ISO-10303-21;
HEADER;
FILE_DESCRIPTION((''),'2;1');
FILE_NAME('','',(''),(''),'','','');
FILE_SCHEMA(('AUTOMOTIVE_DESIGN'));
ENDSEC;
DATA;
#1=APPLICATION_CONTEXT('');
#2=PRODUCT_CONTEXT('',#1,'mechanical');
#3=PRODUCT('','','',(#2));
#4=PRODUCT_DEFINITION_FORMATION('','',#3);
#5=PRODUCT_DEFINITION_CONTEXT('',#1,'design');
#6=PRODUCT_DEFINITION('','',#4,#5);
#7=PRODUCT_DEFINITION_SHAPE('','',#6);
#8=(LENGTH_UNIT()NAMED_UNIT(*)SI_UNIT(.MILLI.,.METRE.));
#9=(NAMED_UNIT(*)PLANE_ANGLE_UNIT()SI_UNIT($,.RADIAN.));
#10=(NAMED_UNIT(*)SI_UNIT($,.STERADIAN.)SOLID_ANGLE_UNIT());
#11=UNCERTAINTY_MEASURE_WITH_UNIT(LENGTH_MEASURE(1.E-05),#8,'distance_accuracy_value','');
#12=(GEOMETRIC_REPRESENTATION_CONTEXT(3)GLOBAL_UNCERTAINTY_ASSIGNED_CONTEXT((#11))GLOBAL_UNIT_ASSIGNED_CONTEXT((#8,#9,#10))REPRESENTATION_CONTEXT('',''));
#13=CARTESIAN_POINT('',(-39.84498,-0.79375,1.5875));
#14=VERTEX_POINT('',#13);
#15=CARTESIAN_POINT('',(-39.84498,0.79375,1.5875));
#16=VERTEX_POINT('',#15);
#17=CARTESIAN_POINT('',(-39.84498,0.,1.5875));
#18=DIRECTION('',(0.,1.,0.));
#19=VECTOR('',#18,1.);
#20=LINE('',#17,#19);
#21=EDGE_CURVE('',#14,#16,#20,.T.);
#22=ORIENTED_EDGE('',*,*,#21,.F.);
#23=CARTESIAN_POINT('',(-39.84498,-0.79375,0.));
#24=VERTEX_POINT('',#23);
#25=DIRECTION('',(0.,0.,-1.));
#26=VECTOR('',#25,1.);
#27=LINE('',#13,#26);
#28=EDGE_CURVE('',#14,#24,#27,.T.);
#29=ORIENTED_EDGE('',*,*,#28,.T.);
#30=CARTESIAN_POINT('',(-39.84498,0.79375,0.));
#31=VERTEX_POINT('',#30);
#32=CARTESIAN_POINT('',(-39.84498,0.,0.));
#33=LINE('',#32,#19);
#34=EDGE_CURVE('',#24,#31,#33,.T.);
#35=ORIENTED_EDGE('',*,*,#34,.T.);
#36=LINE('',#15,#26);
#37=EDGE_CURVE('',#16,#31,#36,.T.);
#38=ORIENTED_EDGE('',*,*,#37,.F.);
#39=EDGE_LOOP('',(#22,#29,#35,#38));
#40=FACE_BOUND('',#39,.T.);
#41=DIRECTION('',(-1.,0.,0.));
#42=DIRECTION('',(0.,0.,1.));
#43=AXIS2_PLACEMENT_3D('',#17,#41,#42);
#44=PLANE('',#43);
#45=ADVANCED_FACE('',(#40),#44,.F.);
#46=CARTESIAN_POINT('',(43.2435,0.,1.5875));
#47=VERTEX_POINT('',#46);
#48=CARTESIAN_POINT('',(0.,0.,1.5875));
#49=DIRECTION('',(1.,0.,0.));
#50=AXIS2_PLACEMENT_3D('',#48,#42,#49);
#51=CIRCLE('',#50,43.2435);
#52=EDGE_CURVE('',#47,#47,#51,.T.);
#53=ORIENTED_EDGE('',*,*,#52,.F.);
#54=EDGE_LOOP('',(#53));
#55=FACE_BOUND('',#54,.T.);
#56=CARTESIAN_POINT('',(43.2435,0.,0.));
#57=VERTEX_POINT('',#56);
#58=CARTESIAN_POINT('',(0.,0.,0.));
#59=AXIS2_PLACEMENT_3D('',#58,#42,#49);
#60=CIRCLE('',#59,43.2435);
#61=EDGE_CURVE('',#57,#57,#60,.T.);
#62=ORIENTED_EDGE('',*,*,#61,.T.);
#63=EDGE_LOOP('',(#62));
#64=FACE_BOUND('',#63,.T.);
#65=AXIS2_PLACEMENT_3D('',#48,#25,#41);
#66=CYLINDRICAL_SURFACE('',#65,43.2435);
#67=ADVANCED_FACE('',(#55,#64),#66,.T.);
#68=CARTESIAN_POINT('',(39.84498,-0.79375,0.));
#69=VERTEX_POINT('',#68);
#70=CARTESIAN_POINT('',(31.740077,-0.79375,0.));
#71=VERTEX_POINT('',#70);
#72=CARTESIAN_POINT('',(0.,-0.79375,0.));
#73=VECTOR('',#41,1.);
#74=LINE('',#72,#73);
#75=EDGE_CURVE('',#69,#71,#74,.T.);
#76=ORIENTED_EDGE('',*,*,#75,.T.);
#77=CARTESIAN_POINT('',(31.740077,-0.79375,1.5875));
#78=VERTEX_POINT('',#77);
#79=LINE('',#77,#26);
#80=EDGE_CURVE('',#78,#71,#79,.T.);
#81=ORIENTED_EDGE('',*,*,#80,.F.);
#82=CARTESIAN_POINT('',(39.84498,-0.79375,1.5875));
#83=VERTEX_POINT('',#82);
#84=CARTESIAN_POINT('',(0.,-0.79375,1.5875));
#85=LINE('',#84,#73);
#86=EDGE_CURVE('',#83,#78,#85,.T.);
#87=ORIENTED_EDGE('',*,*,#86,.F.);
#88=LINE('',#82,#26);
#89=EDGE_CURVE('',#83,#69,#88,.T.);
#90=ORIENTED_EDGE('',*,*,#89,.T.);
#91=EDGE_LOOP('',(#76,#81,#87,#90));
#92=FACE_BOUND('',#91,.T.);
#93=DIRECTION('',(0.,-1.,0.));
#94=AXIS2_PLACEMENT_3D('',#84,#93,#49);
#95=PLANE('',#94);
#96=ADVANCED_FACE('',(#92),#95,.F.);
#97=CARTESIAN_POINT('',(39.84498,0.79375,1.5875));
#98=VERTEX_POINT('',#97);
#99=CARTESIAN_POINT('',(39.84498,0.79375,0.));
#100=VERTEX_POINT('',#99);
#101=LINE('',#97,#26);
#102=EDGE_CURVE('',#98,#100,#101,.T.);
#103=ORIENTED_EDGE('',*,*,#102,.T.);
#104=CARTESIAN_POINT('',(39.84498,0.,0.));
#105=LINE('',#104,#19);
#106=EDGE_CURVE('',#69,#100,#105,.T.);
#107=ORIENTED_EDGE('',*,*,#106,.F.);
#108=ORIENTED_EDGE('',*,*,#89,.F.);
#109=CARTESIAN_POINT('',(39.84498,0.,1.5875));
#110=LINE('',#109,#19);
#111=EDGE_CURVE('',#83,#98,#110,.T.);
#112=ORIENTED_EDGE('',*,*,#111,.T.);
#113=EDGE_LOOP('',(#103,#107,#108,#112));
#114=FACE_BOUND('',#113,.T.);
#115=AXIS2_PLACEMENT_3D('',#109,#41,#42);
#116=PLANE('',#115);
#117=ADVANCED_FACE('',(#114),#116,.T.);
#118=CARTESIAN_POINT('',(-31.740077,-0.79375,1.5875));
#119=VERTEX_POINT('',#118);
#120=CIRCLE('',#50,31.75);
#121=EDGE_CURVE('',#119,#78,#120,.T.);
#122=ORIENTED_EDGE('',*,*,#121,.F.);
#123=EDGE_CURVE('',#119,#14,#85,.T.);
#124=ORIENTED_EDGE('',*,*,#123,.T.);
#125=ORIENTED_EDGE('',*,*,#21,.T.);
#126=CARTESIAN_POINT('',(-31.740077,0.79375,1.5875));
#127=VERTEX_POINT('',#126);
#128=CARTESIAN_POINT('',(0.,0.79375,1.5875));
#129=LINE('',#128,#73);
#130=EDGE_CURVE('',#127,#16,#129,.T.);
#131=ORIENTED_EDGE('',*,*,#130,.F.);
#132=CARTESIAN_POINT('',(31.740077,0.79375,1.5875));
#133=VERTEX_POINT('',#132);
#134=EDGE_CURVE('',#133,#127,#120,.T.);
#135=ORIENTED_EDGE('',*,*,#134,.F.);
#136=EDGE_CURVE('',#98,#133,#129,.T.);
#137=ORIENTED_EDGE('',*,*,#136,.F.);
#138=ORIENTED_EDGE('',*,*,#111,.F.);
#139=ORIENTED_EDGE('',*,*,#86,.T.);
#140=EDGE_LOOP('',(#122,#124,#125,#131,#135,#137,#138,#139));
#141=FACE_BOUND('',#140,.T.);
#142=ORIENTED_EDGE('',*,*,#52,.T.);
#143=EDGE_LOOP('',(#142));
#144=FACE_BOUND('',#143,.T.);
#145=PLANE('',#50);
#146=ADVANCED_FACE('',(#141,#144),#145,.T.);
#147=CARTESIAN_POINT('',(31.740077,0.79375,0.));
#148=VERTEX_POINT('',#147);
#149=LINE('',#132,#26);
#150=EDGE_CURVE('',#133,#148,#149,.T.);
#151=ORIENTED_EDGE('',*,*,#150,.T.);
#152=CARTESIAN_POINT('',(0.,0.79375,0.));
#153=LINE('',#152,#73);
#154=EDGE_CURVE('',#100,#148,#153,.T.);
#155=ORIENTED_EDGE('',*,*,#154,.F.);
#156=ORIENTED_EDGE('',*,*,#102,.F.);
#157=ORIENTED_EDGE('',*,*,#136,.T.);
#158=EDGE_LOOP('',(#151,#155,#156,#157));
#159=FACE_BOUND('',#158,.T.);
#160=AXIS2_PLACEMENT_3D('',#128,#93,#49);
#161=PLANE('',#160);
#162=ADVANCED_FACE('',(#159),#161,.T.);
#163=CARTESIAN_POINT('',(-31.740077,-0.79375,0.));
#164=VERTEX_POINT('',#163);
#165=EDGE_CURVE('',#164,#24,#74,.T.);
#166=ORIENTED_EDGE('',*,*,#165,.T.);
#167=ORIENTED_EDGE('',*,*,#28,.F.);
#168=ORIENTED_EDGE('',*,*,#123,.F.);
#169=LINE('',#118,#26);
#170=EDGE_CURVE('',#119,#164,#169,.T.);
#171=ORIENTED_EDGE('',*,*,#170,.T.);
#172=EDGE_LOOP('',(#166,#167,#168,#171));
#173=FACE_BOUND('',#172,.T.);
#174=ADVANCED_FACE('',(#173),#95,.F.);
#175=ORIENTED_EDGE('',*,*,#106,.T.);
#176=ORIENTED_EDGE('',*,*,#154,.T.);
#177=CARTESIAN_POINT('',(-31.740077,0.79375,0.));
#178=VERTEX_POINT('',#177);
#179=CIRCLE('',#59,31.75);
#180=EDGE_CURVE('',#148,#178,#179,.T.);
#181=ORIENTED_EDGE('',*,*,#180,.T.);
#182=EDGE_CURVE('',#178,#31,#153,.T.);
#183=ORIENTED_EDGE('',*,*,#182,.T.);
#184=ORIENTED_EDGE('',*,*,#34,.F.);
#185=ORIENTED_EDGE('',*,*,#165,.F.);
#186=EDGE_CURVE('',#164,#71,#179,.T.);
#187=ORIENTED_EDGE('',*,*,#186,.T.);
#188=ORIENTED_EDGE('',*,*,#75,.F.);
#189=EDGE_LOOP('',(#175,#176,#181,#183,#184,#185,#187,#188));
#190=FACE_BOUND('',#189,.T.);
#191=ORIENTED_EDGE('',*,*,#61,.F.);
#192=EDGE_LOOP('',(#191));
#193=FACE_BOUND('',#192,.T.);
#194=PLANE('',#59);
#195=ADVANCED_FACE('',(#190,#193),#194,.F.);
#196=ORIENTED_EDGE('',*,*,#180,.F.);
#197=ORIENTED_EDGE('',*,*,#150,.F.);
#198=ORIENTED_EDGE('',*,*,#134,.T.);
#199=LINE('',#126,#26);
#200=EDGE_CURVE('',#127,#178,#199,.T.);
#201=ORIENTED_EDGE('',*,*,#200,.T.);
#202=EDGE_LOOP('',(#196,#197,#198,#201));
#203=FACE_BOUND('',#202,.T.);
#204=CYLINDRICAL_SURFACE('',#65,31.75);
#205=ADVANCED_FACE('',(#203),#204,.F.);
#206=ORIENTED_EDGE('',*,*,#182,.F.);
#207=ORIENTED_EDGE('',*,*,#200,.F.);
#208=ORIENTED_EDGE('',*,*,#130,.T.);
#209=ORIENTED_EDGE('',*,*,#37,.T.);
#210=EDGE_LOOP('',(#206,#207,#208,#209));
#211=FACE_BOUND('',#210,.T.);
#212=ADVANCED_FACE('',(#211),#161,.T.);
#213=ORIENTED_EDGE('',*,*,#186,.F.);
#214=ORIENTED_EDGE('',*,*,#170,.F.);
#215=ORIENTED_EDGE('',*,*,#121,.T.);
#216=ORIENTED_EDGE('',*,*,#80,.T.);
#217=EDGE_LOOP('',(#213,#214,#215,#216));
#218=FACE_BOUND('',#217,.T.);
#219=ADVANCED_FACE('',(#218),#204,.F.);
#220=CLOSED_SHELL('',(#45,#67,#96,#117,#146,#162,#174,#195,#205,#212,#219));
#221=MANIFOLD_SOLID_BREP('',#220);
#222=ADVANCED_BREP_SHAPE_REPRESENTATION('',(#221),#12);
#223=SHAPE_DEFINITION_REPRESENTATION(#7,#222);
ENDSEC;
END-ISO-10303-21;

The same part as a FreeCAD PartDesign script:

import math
import FreeCAD as App
import Part
import Sketcher
Q = App.Units.Quantity

doc = App.newDocument("Part")
body = doc.addObject("PartDesign::Body", "Body")

# Sketch on XY plane
sketch1 = doc.addObject("Sketcher::SketchObject", "Sketch")
body.addObject(sketch1)
sketch1.AttachmentSupport = (doc.XY_Plane, [""])
sketch1.MapMode = "FlatFace"
sketch1.addGeometry(Part.Circle(App.Vector(0, 0, 0), App.Vector(0, 0, 1), 43.2), False)
sketch1.addGeometry(Part.LineSegment(App.Vector(31.7, 0.8, 0), App.Vector(39.8, 0.8, 0)), False)
sketch1.addGeometry(Part.LineSegment(App.Vector(39.8, 0.8, 0), App.Vector(39.8, -0.8, 0)), False)
sketch1.addGeometry(Part.LineSegment(App.Vector(39.8, -0.8, 0), App.Vector(31.7, -0.8, 0)), False)
sketch1.addGeometry(Part.ArcOfCircle(Part.Circle(App.Vector(0, 0, 0), App.Vector(0, 0, 1), 31.8), math.radians(-179), math.radians(-1)), False)
sketch1.addGeometry(Part.LineSegment(App.Vector(-31.7, -0.8, 0), App.Vector(-39.8, -0.8, 0)), False)
sketch1.addGeometry(Part.LineSegment(App.Vector(-39.8, -0.8, 0), App.Vector(-39.8, 0.8, 0)), False)
sketch1.addGeometry(Part.LineSegment(App.Vector(-39.8, 0.8, 0), App.Vector(-31.7, 0.8, 0)), False)
sketch1.addGeometry(Part.ArcOfCircle(Part.Circle(App.Vector(0, 0, 0), App.Vector(0, 0, 1), 31.8), math.radians(1), math.radians(179)), False)
sketch1.addConstraint(Sketcher.Constraint("Coincident", 1, 2, 2, 1))
sketch1.addConstraint(Sketcher.Constraint("Coincident", 2, 2, 3, 1))
sketch1.addConstraint(Sketcher.Constraint("Coincident", 3, 2, 4, 2))
sketch1.addConstraint(Sketcher.Constraint("Coincident", 4, 1, 5, 1))
sketch1.addConstraint(Sketcher.Constraint("Coincident", 5, 2, 6, 1))
sketch1.addConstraint(Sketcher.Constraint("Coincident", 6, 2, 7, 1))
sketch1.addConstraint(Sketcher.Constraint("Coincident", 7, 2, 8, 2))
sketch1.addConstraint(Sketcher.Constraint("Coincident", 8, 1, 1, 1))
sketch1.addConstraint(Sketcher.Constraint("Horizontal", 1))
sketch1.addConstraint(Sketcher.Constraint("Vertical", 2))
sketch1.addConstraint(Sketcher.Constraint("Horizontal", 3))
sketch1.addConstraint(Sketcher.Constraint("Horizontal", 5))
sketch1.addConstraint(Sketcher.Constraint("Vertical", 6))
sketch1.addConstraint(Sketcher.Constraint("Horizontal", 7))
sketch1.addConstraint(Sketcher.Constraint("Coincident", 0, 3, -1, 1))
sketch1.addConstraint(Sketcher.Constraint("Coincident", 4, 3, -1, 1))
sketch1.addConstraint(Sketcher.Constraint("Coincident", 8, 3, -1, 1))
sketch1.addConstraint(Sketcher.Constraint("Equal", 4, 8))
sketch1.addConstraint(Sketcher.Constraint("Symmetric", 1, 2, 5, 2, -1, 1))
sketch1.addConstraint(Sketcher.Constraint("Horizontal", 3, 2, 4, 1))
sketch1.addConstraint(Sketcher.Constraint("Horizontal", 1, 2, 6, 2))
sketch1.addConstraint(Sketcher.Constraint("Radius", 4, Q("1.25 in")))
sketch1.addConstraint(Sketcher.Constraint("Diameter", 0, Q("3.405 in")))
sketch1.addConstraint(Sketcher.Constraint("DistanceY", 2, 2, 2, 1, Q("0.0625 in")))
sketch1.addConstraint(Sketcher.Constraint("DistanceX", -1, 1, 1, 2, Q("1.5687 in")))
pad1 = doc.addObject("PartDesign::Pad", "Pad")
body.addObject(pad1)
pad1.Profile = sketch1
pad1.Length = Q("0.0625 in")

doc.recompute()
